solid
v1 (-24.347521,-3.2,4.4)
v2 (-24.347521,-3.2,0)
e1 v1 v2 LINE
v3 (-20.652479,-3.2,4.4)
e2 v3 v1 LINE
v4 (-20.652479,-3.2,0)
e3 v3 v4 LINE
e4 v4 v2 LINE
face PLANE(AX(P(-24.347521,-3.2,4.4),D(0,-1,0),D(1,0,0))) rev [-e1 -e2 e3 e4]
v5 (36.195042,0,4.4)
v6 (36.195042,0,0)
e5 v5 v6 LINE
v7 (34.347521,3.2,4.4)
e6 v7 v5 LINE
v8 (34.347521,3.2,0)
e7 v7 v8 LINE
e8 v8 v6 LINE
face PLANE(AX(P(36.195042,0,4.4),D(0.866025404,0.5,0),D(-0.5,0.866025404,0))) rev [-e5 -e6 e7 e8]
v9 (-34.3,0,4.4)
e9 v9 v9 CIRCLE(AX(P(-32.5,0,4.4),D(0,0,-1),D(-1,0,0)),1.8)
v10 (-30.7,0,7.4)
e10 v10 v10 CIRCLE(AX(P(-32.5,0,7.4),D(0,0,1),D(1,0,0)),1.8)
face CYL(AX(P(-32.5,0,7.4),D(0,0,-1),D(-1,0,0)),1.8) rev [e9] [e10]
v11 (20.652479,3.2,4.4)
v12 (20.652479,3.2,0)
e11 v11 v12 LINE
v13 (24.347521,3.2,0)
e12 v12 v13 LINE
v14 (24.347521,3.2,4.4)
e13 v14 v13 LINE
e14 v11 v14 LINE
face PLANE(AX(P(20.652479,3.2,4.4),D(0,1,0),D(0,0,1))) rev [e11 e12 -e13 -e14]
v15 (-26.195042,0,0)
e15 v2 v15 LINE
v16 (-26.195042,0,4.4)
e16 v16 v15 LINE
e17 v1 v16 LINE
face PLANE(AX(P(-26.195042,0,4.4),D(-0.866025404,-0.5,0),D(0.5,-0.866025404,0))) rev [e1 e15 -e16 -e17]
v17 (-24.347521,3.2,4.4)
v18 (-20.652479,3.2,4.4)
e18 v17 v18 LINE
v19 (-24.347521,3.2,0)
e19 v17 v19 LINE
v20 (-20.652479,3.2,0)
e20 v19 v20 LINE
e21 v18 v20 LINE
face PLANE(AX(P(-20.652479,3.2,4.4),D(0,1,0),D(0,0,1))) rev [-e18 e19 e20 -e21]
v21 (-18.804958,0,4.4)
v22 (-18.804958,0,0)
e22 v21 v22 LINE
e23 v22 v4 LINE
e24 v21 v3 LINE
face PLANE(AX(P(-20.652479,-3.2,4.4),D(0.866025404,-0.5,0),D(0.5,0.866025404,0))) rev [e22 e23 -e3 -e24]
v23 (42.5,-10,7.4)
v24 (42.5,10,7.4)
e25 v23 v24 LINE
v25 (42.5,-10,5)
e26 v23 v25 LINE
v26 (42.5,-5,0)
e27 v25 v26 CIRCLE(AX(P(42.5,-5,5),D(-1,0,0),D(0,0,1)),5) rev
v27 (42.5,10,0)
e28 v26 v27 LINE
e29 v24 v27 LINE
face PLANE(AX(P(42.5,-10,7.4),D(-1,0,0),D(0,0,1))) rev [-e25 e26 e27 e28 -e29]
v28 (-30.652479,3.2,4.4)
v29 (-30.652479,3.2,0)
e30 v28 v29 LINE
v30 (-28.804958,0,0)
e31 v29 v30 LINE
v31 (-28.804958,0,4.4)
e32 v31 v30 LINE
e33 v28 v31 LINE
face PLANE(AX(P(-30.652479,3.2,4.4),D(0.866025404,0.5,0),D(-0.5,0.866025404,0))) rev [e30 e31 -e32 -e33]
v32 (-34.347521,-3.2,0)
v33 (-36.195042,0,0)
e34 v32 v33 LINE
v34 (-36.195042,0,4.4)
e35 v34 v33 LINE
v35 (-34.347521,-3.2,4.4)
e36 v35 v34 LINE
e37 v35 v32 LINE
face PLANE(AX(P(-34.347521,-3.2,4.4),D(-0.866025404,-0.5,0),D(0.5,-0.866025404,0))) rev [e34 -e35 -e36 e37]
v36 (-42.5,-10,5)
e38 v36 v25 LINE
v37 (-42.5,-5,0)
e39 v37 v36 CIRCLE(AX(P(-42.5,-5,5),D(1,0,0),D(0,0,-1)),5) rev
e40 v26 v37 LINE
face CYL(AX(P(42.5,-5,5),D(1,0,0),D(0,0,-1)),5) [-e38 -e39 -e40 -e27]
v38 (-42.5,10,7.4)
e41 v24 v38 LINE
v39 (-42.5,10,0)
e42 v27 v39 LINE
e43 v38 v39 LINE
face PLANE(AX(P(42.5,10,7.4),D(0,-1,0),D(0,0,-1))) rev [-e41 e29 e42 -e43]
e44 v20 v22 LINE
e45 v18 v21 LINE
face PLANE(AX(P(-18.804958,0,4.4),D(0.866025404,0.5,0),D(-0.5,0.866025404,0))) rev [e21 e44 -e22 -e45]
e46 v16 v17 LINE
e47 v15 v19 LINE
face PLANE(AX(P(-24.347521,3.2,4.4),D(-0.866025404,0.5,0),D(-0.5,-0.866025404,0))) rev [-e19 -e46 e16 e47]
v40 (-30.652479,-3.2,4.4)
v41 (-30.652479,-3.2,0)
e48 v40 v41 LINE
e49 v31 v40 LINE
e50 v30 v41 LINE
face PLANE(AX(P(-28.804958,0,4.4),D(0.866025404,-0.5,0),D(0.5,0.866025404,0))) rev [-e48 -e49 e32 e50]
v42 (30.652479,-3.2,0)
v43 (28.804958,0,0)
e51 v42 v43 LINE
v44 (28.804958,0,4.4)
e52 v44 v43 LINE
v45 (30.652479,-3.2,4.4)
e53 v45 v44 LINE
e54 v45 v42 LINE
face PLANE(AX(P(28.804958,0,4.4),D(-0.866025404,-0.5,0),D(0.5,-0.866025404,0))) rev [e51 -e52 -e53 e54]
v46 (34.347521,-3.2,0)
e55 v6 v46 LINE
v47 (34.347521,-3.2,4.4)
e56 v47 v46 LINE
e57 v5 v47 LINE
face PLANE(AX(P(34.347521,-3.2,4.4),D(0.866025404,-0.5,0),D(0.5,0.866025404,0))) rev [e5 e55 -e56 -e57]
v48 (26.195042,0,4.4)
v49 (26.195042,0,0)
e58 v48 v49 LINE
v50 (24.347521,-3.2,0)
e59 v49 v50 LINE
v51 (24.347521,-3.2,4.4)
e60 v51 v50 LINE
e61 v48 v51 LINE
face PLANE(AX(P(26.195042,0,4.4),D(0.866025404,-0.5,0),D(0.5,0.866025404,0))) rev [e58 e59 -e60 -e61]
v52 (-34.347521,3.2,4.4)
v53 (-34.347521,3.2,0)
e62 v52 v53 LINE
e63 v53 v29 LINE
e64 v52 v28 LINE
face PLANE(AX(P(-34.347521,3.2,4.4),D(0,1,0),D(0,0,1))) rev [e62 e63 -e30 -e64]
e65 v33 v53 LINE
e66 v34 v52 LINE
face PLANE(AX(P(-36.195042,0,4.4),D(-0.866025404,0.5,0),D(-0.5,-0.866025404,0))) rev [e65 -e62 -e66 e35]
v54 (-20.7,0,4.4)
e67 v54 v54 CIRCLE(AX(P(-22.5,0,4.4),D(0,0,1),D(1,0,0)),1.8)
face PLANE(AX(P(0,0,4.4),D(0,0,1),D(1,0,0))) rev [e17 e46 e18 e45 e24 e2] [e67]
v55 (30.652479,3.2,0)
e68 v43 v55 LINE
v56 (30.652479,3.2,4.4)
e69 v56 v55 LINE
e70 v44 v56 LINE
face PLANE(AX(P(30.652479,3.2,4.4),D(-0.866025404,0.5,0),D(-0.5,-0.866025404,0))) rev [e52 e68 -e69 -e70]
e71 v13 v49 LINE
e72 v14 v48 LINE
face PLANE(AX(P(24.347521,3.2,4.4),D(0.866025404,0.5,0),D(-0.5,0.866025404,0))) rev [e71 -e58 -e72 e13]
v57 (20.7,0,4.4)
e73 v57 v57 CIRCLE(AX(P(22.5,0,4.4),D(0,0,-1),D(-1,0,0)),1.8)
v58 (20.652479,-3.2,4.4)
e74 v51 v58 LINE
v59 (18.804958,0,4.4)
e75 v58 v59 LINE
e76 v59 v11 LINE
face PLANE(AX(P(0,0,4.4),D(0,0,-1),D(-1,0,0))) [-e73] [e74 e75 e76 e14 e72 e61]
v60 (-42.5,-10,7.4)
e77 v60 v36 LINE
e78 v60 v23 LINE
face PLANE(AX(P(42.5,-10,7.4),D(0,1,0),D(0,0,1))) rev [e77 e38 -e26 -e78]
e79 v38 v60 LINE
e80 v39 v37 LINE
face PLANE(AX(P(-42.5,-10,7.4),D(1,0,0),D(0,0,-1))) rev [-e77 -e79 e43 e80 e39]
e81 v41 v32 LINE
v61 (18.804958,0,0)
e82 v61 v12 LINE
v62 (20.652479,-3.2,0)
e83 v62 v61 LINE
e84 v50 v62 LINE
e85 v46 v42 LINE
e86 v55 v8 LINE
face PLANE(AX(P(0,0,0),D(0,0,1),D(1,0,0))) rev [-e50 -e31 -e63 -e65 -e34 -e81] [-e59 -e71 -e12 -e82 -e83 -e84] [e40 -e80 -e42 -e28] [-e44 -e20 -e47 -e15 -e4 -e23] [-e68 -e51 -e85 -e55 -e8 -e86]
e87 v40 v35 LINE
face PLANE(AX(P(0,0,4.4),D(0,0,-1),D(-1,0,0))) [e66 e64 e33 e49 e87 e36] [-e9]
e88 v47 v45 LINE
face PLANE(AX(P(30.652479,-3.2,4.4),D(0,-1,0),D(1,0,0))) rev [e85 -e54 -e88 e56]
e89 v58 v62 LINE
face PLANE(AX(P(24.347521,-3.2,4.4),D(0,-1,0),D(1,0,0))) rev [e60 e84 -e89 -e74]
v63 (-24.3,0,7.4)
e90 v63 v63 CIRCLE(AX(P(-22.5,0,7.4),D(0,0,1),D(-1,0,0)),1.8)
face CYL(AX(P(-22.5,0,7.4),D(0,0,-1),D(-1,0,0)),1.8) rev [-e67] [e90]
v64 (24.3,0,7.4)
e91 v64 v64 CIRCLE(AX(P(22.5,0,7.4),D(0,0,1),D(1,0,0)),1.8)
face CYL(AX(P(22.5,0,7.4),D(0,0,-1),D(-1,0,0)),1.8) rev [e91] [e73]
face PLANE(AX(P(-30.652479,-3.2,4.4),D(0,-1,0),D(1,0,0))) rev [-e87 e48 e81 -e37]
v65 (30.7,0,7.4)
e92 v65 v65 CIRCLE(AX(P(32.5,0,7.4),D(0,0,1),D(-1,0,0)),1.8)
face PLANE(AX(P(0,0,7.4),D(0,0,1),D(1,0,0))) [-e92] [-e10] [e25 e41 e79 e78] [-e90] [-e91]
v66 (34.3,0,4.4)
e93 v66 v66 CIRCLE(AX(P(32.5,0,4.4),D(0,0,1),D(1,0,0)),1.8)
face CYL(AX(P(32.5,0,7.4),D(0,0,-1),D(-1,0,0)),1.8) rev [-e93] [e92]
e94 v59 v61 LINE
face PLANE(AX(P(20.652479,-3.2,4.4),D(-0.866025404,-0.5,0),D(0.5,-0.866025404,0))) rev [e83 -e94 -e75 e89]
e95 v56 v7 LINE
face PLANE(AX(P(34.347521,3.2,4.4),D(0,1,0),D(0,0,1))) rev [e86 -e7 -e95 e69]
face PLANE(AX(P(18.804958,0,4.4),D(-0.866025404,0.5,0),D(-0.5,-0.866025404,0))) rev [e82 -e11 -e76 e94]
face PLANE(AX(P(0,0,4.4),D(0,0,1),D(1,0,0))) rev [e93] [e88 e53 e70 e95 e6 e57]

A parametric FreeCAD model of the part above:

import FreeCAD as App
import Part
import Sketcher

V = App.Vector
Q = App.Units.Quantity


def edges_at(feature, points):
    """Names of the edges that pass closest to the given points."""
    edges = feature.Shape.Edges
    near = lambda p: min(range(len(edges)), key=lambda i: edges[i].distToShape(Part.Vertex(*p))[0])
    return sorted({f"Edge{near(p) + 1}" for p in points})

doc = App.newDocument("Part")
params = doc.addObject("Spreadsheet::Sheet", "Params")
for row, (alias, value) in enumerate([
    ("sketch1_diameter", "3.6 mm"),
    ("sketch1_width", "85 mm"),
    ("sketch1_height", "20 mm"),
    ("pad1_length", "7.4 mm"),
    ("pocket1_length", "4.4 mm"),
    ("fillet_radius", "5 mm"),
], start=1):
    params.set(f"A{row}", alias)
    params.set(f"B{row}", "=" + value)
    params.setAlias(f"B{row}", alias)

body = doc.addObject("PartDesign::Body", "Body")

# Sketch on XY plane
sketch1 = body.newObject("Sketcher::SketchObject", "Sketch")
sketch1.AttachmentSupport = (doc.getObject("XY_Plane"), [""])
sketch1.MapMode = "FlatFace"
sketch1.addGeometry(Part.LineSegment(V(-42.5, 10, 0), V(-42.5, -10, 0)), False)
sketch1.addGeometry(Part.LineSegment(V(-42.5, -10, 0), V(42.5, -10, 0)), False)
sketch1.addGeometry(Part.LineSegment(V(42.5, -10, 0), V(42.5, 10, 0)), False)
sketch1.addGeometry(Part.LineSegment(V(42.5, 10, 0), V(-42.5, 10, 0)), False)
sketch1.addGeometry(Part.Circle(V(-32.5, 0, 0), V(0, 0, 1), 1.8), False)
sketch1.addGeometry(Part.Circle(V(-22.5, 0, 0), V(0, 0, 1), 1.8), False)
sketch1.addGeometry(Part.Circle(V(22.5, 0, 0), V(0, 0, 1), 1.8), False)
sketch1.addGeometry(Part.Circle(V(32.5, 0, 0), V(0, 0, 1), 1.8), False)
sketch1.addConstraint(Sketcher.Constraint("Coincident", 0, 2, 1, 1))
sketch1.addConstraint(Sketcher.Constraint("Coincident", 1, 2, 2, 1))
sketch1.addConstraint(Sketcher.Constraint("Coincident", 2, 2, 3, 1))
sketch1.addConstraint(Sketcher.Constraint("Coincident", 3, 2, 0, 1))
sketch1.addConstraint(Sketcher.Constraint("Vertical", 0))
sketch1.addConstraint(Sketcher.Constraint("Horizontal", 1))
sketch1.addConstraint(Sketcher.Constraint("Vertical", 2))
sketch1.addConstraint(Sketcher.Constraint("Horizontal", 3))
sketch1.addConstraint(Sketcher.Constraint("Equal", 4, 5))
sketch1.addConstraint(Sketcher.Constraint("Equal", 5, 6))
sketch1.addConstraint(Sketcher.Constraint("Equal", 6, 7))
sketch1.addConstraint(Sketcher.Constraint("Symmetric", 5, 3, 6, 3, -1, 1))
sketch1.addConstraint(Sketcher.Constraint("Symmetric", 4, 3, 7, 3, -1, 1))
sketch1.addConstraint(Sketcher.Constraint("Symmetric", 0, 2, 2, 2, -1, 1))
sketch1.addConstraint(Sketcher.Constraint("PointOnObject", 4, 3, -1))
sketch1.addConstraint(Sketcher.Constraint("PointOnObject", 5, 3, -1))
sketch1.addConstraint(Sketcher.Constraint("Diameter", 4, 3.6))
sketch1.addConstraint(Sketcher.Constraint("DistanceX", 1, 1, 1, 2, 85.0))
sketch1.addConstraint(Sketcher.Constraint("DistanceY", 0, 2, 0, 1, 20.0))
sketch1.addConstraint(Sketcher.Constraint("DistanceX", 4, 3, 5, 3, 10.0))
sketch1.addConstraint(Sketcher.Constraint("DistanceX", 5, 3, 6, 3, 45.0))
sketch1.setExpression("Constraints[16]", "Params.sketch1_diameter")
sketch1.setExpression("Constraints[17]", "Params.sketch1_width")
sketch1.setExpression("Constraints[18]", "Params.sketch1_height")
pad1 = body.newObject("PartDesign::Pad", "Pad")
pad1.Profile = sketch1
pad1.setExpression("Length", "Params.pad1_length")

# Sketch on XY plane
sketch2 = body.newObject("Sketcher::SketchObject", "Sketch001")
sketch2.AttachmentSupport = (doc.getObject("XY_Plane"), [""])
sketch2.MapMode = "FlatFace"
sketch2.addGeometry(Part.LineSegment(V(-18.8, 0, 0), V(-20.7, -3.2, 0)), False)
sketch2.addGeometry(Part.LineSegment(V(-20.7, -3.2, 0), V(-24.3, -3.2, 0)), False)
sketch2.addGeometry(Part.LineSegment(V(-24.3, -3.2, 0), V(-26.2, 0, 0)), False)
sketch2.addGeometry(Part.LineSegment(V(-26.2, 0, 0), V(-24.3, 3.2, 0)), False)
sketch2.addGeometry(Part.LineSegment(V(-24.3, 3.2, 0), V(-20.7, 3.2, 0)), False)
sketch2.addGeometry(Part.LineSegment(V(-20.7, 3.2, 0), V(-18.8, 0, 0)), False)
sketch2.addGeometry(Part.LineSegment(V(-36.2, 0, 0), V(-34.3, 3.2, 0)), False)
sketch2.addGeometry(Part.LineSegment(V(-34.3, 3.2, 0), V(-30.7, 3.2, 0)), False)
sketch2.addGeometry(Part.LineSegment(V(-30.7, 3.2, 0), V(-28.8, 0, 0)), False)
sketch2.addGeometry(Part.LineSegment(V(-28.8, 0, 0), V(-30.7, -3.2, 0)), False)
sketch2.addGeometry(Part.LineSegment(V(-30.7, -3.2, 0), V(-34.3, -3.2, 0)), False)
sketch2.addGeometry(Part.LineSegment(V(-34.3, -3.2, 0), V(-36.2, 0, 0)), False)
sketch2.addGeometry(Part.LineSegment(V(18.8, 0, 0), V(20.7, 3.2, 0)), False)
sketch2.addGeometry(Part.LineSegment(V(20.7, 3.2, 0), V(24.3, 3.2, 0)), False)
sketch2.addGeometry(Part.LineSegment(V(24.3, 3.2, 0), V(26.2, 0, 0)), False)
sketch2.addGeometry(Part.LineSegment(V(26.2, 0, 0), V(24.3, -3.2, 0)), False)
sketch2.addGeometry(Part.LineSegment(V(24.3, -3.2, 0), V(20.7, -3.2, 0)), False)
sketch2.addGeometry(Part.LineSegment(V(20.7, -3.2, 0), V(18.8, 0, 0)), False)
sketch2.addGeometry(Part.LineSegment(V(36.2, 0, 0), V(34.3, -3.2, 0)), False)
sketch2.addGeometry(Part.LineSegment(V(34.3, -3.2, 0), V(30.7, -3.2, 0)), False)
sketch2.addGeometry(Part.LineSegment(V(30.7, -3.2, 0), V(28.8, 0, 0)), False)
sketch2.addGeometry(Part.LineSegment(V(28.8, 0, 0), V(30.7, 3.2, 0)), False)
sketch2.addGeometry(Part.LineSegment(V(30.7, 3.2, 0), V(34.3, 3.2, 0)), False)
sketch2.addGeometry(Part.LineSegment(V(34.3, 3.2, 0), V(36.2, 0, 0)), False)
sketch2.addConstraint(Sketcher.Constraint("Coincident", 0, 2, 1, 1))
sketch2.addConstraint(Sketcher.Constraint("Coincident", 1, 2, 2, 1))
sketch2.addConstraint(Sketcher.Constraint("Coincident", 2, 2, 3, 1))
sketch2.addConstraint(Sketcher.Constraint("Coincident", 3, 2, 4, 1))
sketch2.addConstraint(Sketcher.Constraint("Coincident", 4, 2, 5, 1))
sketch2.addConstraint(Sketcher.Constraint("Coincident", 5, 2, 0, 1))
sketch2.addConstraint(Sketcher.Constraint("Coincident", 6, 2, 7, 1))
sketch2.addConstraint(Sketcher.Constraint("Coincident", 7, 2, 8, 1))
sketch2.addConstraint(Sketcher.Constraint("Coincident", 8, 2, 9, 1))
sketch2.addConstraint(Sketcher.Constraint("Coincident", 9, 2, 10, 1))
sketch2.addConstraint(Sketcher.Constraint("Coincident", 10, 2, 11, 1))
sketch2.addConstraint(Sketcher.Constraint("Coincident", 11, 2, 6, 1))
sketch2.addConstraint(Sketcher.Constraint("Coincident", 12, 2, 13, 1))
sketch2.addConstraint(Sketcher.Constraint("Coincident", 13, 2, 14, 1))
sketch2.addConstraint(Sketcher.Constraint("Coincident", 14, 2, 15, 1))
sketch2.addConstraint(Sketcher.Constraint("Coincident", 15, 2, 16, 1))
sketch2.addConstraint(Sketcher.Constraint("Coincident", 16, 2, 17, 1))
sketch2.addConstraint(Sketcher.Constraint("Coincident", 17, 2, 12, 1))
sketch2.addConstraint(Sketcher.Constraint("Coincident", 18, 2, 19, 1))
sketch2.addConstraint(Sketcher.Constraint("Coincident", 19, 2, 20, 1))
sketch2.addConstraint(Sketcher.Constraint("Coincident", 20, 2, 21, 1))
sketch2.addConstraint(Sketcher.Constraint("Coincident", 21, 2, 22, 1))
sketch2.addConstraint(Sketcher.Constraint("Coincident", 22, 2, 23, 1))
sketch2.addConstraint(Sketcher.Constraint("Coincident", 23, 2, 18, 1))
sketch2.addConstraint(Sketcher.Constraint("Horizontal", 1))
sketch2.addConstraint(Sketcher.Constraint("Horizontal", 4))
sketch2.addConstraint(Sketcher.Constraint("Horizontal", 7))
sketch2.addConstraint(Sketcher.Constraint("Horizontal", 10))
sketch2.addConstraint(Sketcher.Constraint("Horizontal", 13))
sketch2.addConstraint(Sketcher.Constraint("Horizontal", 16))
sketch2.addConstraint(Sketcher.Constraint("Horizontal", 19))
sketch2.addConstraint(Sketcher.Constraint("Horizontal", 22))
sketch2.addConstraint(Sketcher.Constraint("Symmetric", 0, 2, 12, 2, -1, 1))
sketch2.addConstraint(Sketcher.Constraint("Symmetric", 2, 2, 14, 2, -1, 1))
sketch2.addConstraint(Sketcher.Constraint("Symmetric", 3, 2, 15, 2, -1, 1))
sketch2.addConstraint(Sketcher.Constraint("Symmetric", 5, 2, 17, 2, -1, 1))
sketch2.addConstraint(Sketcher.Constraint("Symmetric", 6, 2, 18, 2, -1, 1))
sketch2.addConstraint(Sketcher.Constraint("Symmetric", 8, 2, 20, 2, -1, 1))
sketch2.addConstraint(Sketcher.Constraint("Symmetric", 9, 2, 21, 2, -1, 1))
sketch2.addConstraint(Sketcher.Constraint("Symmetric", 11, 2, 23, 2, -1, 1))
sketch2.addConstraint(Sketcher.Constraint("Symmetric", 4, 2, 12, 2, -2))
sketch2.addConstraint(Sketcher.Constraint("Symmetric", 10, 2, 18, 2, -2))
sketch2.addConstraint(Sketcher.Constraint("PointOnObject", 2, 2, -1))
sketch2.addConstraint(Sketcher.Constraint("PointOnObject", 5, 2, -1))
sketch2.addConstraint(Sketcher.Constraint("PointOnObject", 8, 2, -1))
sketch2.addConstraint(Sketcher.Constraint("PointOnObject", 11, 2, -1))
sketch2.addConstraint(Sketcher.Constraint("Parallel", 0, 3))
sketch2.addConstraint(Sketcher.Constraint("Parallel", 2, 5))
sketch2.addConstraint(Sketcher.Constraint("Parallel", 3, 6))
sketch2.addConstraint(Sketcher.Constraint("Parallel", 5, 8))
sketch2.addConstraint(Sketcher.Constraint("Parallel", 6, 9))
sketch2.addConstraint(Sketcher.Constraint("Parallel", 11, 14))
sketch2.addConstraint(Sketcher.Constraint("Parallel", 14, 17))
sketch2.addConstraint(Sketcher.Constraint("Parallel", 17, 20))
sketch2.addConstraint(Sketcher.Constraint("Parallel", 20, 23))
sketch2.addConstraint(Sketcher.Constraint("Horizontal", 4, 2, 6, 2))
sketch2.addConstraint(Sketcher.Constraint("Equal", 4, 7))
sketch2.addConstraint(Sketcher.Constraint("Angle", 0, Q("-120 deg")))
sketch2.addConstraint(Sketcher.Constraint("DistanceX", 6, 2, 3, 2, 10.0))
sketch2.addConstraint(Sketcher.Constraint("DistanceX", 3, 2, 12, 2, 45.0))
sketch2.addConstraint(Sketcher.Constraint("DistanceY", 0, 2, -1, 1, 3.2))
sketch2.addConstraint(Sketcher.Constraint("DistanceX", 1, 2, 1, 1, 3.695042))
pocket1 = body.newObject("PartDesign::Pocket", "Pocket")
pocket1.Profile = sketch2
pocket1.setExpression("Length", "Params.pocket1_length")
pocket1.Reversed = True
doc.recompute()

fillet = body.newObject("PartDesign::Fillet", "Fillet")
fillet.Base = (pocket1, edges_at(pocket1, [(0, -10, 0)]))
fillet.setExpression("Radius", "Params.fillet_radius")

doc.recompute()
